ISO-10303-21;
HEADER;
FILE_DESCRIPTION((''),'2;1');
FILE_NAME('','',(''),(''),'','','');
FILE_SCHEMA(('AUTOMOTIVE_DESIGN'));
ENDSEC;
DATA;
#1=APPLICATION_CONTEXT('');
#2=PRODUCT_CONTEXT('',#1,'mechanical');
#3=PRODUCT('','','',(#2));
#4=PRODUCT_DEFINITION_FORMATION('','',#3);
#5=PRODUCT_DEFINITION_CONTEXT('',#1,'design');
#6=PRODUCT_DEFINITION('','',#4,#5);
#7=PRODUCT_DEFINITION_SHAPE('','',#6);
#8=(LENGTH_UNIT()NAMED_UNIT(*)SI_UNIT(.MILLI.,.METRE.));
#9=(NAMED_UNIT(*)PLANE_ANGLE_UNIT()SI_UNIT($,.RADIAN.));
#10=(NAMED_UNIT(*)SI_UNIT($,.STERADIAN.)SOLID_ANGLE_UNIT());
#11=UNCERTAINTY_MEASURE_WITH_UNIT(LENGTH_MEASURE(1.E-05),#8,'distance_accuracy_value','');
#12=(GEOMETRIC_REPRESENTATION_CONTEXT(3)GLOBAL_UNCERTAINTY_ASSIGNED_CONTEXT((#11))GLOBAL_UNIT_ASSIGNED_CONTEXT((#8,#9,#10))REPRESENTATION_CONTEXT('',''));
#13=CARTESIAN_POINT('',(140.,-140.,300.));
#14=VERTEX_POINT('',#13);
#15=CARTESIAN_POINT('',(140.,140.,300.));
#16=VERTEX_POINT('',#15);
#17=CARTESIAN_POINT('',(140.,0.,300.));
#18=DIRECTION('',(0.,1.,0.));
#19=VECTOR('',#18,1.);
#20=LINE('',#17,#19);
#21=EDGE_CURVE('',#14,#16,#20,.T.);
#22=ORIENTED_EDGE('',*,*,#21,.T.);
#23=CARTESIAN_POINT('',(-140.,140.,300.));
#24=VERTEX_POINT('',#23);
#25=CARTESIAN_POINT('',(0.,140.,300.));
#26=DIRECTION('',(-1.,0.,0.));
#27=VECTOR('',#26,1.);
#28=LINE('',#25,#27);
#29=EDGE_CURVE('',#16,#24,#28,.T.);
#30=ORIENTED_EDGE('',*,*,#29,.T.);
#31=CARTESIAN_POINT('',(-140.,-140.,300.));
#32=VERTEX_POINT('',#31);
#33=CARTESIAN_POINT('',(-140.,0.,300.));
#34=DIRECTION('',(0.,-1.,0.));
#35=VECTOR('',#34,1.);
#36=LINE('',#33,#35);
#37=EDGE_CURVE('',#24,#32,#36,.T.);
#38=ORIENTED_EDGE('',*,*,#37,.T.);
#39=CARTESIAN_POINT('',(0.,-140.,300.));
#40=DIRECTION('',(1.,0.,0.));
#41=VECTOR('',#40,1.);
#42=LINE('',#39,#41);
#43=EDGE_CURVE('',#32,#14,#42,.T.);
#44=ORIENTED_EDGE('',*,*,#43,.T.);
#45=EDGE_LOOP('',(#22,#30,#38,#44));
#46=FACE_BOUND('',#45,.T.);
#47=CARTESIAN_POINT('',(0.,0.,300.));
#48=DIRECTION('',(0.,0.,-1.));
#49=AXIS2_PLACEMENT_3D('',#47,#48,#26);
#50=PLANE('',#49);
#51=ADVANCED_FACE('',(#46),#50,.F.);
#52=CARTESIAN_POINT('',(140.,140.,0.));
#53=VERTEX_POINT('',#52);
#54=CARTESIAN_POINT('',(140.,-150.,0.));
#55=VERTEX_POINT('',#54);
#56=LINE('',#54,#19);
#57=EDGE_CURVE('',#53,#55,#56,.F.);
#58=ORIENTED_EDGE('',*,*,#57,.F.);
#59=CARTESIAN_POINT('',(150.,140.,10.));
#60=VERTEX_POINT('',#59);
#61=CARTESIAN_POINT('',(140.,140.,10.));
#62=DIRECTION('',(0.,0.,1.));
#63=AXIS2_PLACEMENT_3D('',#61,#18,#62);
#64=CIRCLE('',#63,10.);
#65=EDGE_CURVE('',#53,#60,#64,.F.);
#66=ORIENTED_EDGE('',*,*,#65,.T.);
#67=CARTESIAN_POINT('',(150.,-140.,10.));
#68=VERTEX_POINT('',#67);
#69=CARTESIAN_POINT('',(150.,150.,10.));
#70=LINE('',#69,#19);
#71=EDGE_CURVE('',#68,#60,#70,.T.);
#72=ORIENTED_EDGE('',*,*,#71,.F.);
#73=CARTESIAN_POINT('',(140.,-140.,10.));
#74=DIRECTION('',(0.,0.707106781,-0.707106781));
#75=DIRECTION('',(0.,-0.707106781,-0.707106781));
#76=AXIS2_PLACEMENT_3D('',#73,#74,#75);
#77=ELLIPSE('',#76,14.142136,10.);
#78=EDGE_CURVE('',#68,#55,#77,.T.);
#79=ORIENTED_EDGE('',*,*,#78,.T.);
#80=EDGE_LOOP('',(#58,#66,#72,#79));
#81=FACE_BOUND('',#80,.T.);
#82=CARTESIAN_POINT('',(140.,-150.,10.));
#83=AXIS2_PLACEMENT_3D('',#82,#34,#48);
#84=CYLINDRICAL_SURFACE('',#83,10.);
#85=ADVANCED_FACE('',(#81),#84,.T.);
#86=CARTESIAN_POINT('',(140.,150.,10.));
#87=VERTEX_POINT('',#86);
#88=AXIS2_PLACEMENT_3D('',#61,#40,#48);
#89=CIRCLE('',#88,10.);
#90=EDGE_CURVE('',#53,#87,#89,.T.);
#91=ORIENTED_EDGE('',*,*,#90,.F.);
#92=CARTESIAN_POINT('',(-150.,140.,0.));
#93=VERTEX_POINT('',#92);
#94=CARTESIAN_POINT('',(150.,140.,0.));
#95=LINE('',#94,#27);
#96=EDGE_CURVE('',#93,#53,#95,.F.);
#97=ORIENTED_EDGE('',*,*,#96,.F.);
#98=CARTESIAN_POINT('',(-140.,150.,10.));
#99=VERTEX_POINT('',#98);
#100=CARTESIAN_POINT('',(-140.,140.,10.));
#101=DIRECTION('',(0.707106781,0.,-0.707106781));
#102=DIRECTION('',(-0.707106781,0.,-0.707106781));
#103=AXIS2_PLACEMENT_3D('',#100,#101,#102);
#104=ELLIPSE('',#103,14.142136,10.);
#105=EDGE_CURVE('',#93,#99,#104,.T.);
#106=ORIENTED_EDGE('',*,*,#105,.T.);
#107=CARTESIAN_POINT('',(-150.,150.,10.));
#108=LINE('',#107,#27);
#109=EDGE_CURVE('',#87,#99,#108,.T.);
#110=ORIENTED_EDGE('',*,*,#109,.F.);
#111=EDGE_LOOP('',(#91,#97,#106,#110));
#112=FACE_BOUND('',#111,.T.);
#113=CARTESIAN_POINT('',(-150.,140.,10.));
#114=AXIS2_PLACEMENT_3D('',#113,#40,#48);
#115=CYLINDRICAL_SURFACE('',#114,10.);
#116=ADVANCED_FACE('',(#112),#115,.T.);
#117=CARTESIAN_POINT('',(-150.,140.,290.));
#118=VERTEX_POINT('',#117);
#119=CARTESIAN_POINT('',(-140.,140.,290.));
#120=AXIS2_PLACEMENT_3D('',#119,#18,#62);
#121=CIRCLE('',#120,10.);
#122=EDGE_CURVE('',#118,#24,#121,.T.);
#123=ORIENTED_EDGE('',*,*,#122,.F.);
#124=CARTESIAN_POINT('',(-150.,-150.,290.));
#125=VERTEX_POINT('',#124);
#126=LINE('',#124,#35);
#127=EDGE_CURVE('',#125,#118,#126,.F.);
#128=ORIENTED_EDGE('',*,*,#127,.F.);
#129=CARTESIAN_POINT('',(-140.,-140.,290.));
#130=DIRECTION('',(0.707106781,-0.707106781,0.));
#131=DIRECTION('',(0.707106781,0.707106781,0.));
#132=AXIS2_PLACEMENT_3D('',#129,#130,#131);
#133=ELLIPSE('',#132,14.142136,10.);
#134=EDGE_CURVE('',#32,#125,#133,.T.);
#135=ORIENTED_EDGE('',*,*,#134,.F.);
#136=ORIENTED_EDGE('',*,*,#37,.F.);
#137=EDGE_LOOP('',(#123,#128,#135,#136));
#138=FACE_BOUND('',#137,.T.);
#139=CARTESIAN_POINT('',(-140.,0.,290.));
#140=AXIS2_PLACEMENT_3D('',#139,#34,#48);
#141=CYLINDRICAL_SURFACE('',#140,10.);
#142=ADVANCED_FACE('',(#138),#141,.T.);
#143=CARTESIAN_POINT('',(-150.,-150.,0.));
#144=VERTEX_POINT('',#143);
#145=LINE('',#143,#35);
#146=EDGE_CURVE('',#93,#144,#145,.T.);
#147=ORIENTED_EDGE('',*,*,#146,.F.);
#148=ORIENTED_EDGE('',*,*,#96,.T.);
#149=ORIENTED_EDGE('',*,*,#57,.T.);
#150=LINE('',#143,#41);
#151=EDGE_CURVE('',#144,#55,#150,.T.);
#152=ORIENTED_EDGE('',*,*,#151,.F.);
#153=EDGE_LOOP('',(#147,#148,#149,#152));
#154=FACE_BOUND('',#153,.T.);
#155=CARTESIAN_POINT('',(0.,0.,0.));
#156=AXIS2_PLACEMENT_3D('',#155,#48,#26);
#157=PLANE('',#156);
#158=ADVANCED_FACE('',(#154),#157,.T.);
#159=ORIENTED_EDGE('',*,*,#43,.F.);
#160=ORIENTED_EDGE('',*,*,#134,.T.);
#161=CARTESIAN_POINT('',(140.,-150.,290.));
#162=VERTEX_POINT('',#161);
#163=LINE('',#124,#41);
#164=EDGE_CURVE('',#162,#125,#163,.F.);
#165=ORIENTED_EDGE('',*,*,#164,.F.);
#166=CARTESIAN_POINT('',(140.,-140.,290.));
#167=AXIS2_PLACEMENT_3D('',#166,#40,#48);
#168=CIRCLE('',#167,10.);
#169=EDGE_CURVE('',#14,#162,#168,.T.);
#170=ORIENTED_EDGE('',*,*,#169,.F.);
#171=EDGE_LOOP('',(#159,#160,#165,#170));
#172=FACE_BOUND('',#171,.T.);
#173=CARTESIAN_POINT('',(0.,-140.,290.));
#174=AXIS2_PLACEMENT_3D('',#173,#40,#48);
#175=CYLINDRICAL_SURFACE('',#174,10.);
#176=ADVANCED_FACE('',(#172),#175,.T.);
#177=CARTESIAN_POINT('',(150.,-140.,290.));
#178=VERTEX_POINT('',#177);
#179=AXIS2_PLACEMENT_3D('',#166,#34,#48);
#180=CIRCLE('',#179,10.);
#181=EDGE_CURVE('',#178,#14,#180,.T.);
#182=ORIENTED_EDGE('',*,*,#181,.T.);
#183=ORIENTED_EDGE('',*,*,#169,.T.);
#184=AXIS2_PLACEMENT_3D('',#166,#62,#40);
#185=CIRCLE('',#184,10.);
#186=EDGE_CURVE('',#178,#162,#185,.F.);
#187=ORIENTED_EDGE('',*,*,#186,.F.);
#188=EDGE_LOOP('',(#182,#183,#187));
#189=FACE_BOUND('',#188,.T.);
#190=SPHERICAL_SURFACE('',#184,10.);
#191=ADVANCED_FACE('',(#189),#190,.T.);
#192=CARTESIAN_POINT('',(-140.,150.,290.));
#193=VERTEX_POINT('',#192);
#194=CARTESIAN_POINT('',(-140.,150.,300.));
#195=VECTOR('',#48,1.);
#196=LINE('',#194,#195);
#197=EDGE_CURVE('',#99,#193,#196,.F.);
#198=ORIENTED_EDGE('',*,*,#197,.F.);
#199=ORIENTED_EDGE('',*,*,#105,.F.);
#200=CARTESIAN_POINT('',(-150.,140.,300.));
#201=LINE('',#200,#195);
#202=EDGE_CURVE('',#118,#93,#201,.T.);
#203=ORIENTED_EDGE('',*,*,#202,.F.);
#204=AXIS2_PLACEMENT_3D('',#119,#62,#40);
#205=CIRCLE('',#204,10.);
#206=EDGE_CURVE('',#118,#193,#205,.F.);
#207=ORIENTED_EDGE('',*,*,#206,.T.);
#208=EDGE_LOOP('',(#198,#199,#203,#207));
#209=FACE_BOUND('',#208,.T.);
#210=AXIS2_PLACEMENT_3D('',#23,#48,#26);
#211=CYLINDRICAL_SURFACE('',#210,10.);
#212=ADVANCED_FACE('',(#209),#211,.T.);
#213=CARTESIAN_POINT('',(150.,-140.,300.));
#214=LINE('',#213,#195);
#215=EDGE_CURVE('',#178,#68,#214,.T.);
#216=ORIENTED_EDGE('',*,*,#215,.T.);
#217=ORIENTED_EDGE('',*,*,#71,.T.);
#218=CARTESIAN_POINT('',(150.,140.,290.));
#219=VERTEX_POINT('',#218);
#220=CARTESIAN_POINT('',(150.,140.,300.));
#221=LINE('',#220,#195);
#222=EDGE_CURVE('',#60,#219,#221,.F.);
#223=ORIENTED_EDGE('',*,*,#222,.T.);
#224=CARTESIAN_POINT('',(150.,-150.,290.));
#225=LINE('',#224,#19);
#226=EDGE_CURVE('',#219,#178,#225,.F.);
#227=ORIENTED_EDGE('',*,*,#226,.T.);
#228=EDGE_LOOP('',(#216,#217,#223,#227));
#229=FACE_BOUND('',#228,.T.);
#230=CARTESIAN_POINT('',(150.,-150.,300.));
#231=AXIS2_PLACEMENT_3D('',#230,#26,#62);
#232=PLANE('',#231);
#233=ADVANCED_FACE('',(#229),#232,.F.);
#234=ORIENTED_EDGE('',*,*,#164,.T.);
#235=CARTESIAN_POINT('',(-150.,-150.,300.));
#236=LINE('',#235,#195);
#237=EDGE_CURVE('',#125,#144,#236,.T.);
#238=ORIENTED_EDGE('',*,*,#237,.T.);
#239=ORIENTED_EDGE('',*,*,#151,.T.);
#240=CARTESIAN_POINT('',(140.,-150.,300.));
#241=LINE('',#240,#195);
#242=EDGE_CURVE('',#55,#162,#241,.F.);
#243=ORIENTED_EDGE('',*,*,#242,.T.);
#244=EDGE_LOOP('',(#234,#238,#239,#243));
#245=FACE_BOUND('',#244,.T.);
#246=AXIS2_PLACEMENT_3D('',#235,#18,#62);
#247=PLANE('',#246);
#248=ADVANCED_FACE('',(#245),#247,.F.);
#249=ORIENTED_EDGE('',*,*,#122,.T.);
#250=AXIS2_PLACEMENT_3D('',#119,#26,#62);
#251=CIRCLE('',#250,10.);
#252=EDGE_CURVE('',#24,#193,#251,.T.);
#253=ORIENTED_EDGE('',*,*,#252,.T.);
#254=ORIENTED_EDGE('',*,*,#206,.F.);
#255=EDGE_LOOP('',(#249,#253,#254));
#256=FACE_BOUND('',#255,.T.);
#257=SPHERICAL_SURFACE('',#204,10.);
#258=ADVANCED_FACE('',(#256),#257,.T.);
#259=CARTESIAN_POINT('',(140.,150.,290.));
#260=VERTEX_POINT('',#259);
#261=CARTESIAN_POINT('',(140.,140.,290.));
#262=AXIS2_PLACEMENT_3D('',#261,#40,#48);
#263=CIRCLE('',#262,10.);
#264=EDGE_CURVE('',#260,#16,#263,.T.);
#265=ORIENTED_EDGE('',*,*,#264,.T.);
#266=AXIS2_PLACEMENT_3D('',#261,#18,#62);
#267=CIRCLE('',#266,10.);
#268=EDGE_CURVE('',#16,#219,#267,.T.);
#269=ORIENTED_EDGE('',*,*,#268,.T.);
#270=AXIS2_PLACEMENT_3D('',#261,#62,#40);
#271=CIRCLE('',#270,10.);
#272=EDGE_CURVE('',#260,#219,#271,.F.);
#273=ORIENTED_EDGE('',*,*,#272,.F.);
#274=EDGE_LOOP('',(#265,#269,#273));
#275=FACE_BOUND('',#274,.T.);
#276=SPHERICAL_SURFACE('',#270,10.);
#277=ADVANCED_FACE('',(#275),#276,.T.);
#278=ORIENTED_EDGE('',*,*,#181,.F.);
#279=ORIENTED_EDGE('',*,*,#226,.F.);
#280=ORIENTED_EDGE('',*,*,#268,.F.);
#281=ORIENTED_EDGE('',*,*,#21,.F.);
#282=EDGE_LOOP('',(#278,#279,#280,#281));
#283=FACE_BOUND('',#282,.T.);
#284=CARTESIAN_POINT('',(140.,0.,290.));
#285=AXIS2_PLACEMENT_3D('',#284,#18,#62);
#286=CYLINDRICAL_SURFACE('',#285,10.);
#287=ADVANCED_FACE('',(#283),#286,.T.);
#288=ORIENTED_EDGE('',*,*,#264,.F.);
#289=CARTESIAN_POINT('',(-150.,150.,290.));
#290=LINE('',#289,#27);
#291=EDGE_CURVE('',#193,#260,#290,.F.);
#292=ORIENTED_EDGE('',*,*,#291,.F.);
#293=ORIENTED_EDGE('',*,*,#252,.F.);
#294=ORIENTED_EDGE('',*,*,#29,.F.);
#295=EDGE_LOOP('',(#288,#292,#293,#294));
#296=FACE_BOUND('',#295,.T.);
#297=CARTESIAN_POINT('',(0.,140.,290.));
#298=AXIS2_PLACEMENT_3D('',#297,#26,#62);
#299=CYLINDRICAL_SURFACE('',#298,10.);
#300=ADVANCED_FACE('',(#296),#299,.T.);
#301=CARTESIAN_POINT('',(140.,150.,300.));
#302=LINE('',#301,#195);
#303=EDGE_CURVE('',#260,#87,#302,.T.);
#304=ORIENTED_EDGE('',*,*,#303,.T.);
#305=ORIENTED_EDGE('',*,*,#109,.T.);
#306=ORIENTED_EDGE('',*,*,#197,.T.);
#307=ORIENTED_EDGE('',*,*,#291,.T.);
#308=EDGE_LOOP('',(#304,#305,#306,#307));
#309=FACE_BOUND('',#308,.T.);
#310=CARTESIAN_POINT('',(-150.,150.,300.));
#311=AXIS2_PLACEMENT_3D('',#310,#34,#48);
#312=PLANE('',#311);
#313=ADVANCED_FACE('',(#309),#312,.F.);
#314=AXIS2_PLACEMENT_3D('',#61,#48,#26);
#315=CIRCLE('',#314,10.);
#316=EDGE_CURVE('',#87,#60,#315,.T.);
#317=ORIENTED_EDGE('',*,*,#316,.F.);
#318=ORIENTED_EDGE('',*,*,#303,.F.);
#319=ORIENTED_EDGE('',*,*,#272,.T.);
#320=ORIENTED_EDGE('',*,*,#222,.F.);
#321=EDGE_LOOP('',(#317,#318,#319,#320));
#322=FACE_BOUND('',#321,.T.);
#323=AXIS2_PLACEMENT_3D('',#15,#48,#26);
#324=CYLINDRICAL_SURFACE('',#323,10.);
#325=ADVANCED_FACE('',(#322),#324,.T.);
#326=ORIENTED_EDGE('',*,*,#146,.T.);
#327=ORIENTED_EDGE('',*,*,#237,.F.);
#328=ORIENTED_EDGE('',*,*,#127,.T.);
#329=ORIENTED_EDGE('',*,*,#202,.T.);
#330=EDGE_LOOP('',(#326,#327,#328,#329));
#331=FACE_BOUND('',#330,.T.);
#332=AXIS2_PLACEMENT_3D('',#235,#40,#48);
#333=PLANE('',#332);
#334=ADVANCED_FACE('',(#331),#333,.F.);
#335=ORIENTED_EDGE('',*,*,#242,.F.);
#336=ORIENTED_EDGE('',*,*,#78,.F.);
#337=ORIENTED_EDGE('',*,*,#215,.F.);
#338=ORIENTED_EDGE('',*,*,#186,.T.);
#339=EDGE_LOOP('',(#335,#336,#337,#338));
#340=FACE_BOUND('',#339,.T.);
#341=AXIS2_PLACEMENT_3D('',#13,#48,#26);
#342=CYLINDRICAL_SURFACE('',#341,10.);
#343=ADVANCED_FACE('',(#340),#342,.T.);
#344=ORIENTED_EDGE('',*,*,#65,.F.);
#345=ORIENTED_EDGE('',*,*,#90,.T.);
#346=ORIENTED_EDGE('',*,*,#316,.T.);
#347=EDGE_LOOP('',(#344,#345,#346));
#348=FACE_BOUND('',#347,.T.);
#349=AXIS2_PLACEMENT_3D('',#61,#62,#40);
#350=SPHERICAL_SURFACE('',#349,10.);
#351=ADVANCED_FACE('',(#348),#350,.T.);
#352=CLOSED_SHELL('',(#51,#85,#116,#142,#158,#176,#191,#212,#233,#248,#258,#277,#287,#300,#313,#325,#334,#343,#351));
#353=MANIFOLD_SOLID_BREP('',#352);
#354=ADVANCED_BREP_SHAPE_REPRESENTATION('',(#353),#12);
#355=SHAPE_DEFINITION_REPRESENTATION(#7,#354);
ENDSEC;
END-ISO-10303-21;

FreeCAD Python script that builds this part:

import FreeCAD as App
import Part
import Sketcher

V = App.Vector


def edges_at(feature, points):
    """Names of the edges that pass closest to the given points."""
    edges = feature.Shape.Edges
    near = lambda p: min(range(len(edges)), key=lambda i: edges[i].distToShape(Part.Vertex(*p))[0])
    return sorted({f"Edge{near(p) + 1}" for p in points})


def add_polygon(sketch, points):
    """Adds a closed chain of lines whose ends are joined by coincident constraints."""
    first, n = sketch.GeometryCount, len(points)
    for a, b in zip(points, points[1:] + points[:1]):
        sketch.addGeometry(Part.LineSegment(App.Vector(*a, 0), App.Vector(*b, 0)), False)
    for i in range(n):
        sketch.addConstraint(Sketcher.Constraint("Coincident", first + i, 2, first + (i + 1) % n, 1))

doc = App.newDocument("Part")
body = doc.addObject("PartDesign::Body", "Body")

# Sketch on XY plane
sketch1 = doc.addObject("Sketcher::SketchObject", "Sketch")
body.addObject(sketch1)
sketch1.AttachmentSupport = (doc.XY_Plane, [""])
sketch1.MapMode = "FlatFace"
add_polygon(sketch1, [(-150, 150), (-150, -150), (150, -150), (150, 150)])  # lines 0-3
sketch1.addConstraint([
    Sketcher.Constraint("Vertical", 0),
    Sketcher.Constraint("Horizontal", 1),
    Sketcher.Constraint("Vertical", 2),
    Sketcher.Constraint("Horizontal", 3),
    Sketcher.Constraint("Symmetric", 0, 2, 2, 2, -1, 1),
    Sketcher.Constraint("Equal", 3, 0),
    Sketcher.Constraint("DistanceX", 1, 1, 1, 2, 300.0),
])
pad1 = doc.addObject("PartDesign::Pad", "Pad")
body.addObject(pad1)
pad1.Profile = sketch1
pad1.Length = 300
doc.recompute()

fillet = doc.addObject("PartDesign::Fillet", "Fillet")
body.addObject(fillet)
fillet.Base = (pad1, edges_at(pad1, [
    (-150, 0, 300),
    (0, -150, 300),
    (150, 0, 300),
    (0, 150, 0),
    (150, 0, 0),
    (150, -150, 150),
    (-150, 150, 150),
    (150, 150, 150),
    (0, 150, 300),
]))
fillet.Radius = 10

doc.recompute()
